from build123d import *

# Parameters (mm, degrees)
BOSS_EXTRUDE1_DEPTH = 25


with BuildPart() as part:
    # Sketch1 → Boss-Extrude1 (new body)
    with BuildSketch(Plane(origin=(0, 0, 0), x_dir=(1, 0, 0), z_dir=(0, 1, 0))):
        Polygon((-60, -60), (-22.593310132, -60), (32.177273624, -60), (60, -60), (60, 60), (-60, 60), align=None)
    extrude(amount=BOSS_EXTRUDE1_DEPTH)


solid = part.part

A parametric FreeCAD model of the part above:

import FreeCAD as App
import Part
import Sketcher
from FreeCAD import Vector
Q = App.Units.Quantity


def add_polygon(sketch, points):
    """Adds a closed chain of lines whose ends are joined by coincident constraints."""
    first, n = sketch.GeometryCount, len(points)
    for a, b in zip(points, points[1:] + points[:1]):
        sketch.addGeometry(Part.LineSegment(App.Vector(*a, 0), App.Vector(*b, 0)), False)
    for i in range(n):
        sketch.addConstraint(Sketcher.Constraint("Coincident", first + i, 2, first + (i + 1) % n, 1))

doc = App.newDocument("Part")
body = doc.addObject("PartDesign::Body", "Body")

# Sketch on XZ plane
sketch1 = body.newObject("Sketcher::SketchObject", "Sketch")
sketch1.AttachmentSupport = (doc.getObject("XZ_Plane"), [""])
sketch1.MapMode = "FlatFace"
add_polygon(sketch1, [(-60, 60), (60, 60), (60, -60), (-60, -60)])  # lines 0-3
sketch1.addConstraint([
    Sketcher.Constraint("Horizontal", 0),
    Sketcher.Constraint("Vertical", 1),
    Sketcher.Constraint("Horizontal", 2),
    Sketcher.Constraint("Vertical", 3),
    Sketcher.Constraint("Symmetric", 0, 2, 2, 2, -1, 1),
    Sketcher.Constraint("Equal", 2, 1),
    Sketcher.Constraint("DistanceX", 0, 1, 0, 2, Q("120 mm")),
])
pad1 = body.newObject("PartDesign::Pad", "Pad")
pad1.Profile = sketch1
pad1.Length = 25
pad1.Reversed = True

doc.recompute()
